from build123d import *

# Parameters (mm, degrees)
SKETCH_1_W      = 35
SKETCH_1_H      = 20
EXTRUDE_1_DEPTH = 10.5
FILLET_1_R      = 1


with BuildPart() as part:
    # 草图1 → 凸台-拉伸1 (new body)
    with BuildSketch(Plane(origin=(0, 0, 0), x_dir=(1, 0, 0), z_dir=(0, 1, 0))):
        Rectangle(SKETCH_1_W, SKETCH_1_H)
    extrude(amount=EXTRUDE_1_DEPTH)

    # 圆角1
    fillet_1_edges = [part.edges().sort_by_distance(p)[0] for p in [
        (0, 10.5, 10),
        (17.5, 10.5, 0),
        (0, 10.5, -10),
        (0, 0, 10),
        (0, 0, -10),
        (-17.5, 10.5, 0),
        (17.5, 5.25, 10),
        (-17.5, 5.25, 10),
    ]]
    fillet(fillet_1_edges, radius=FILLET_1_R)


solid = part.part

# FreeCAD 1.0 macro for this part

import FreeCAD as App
import Part
import Sketcher

V = App.Vector


def edges_at(feature, points):
    """Names of the edges that pass closest to the given points."""
    edges = feature.Shape.Edges
    near = lambda p: min(range(len(edges)), key=lambda i: edges[i].distToShape(Part.Vertex(*p))[0])
    return sorted({f"Edge{near(p) + 1}" for p in points})

doc = App.newDocument("Part")
body = doc.addObject("PartDesign::Body", "Body")

sketch1 = body.newObject("Sketcher::SketchObject", "Sketch")
sketch1.AttachmentSupport = (doc.getObject("XZ_Plane"), [""])
sketch1.MapMode = "FlatFace"
sketch1.addGeometry([
    Part.LineSegment(V(-18, -10, 0), V(-18, 10, 0)),
    Part.LineSegment(V(-18, 10, 0), V(18, 10, 0)),
    Part.LineSegment(V(18, 10, 0), V(18, -10, 0)),
    Part.LineSegment(V(18, -10, 0), V(-18, -10, 0)),
], False)
sketch1.addConstraint([
    Sketcher.Constraint("Coincident", 0, 2, 1, 1),
    Sketcher.Constraint("Coincident", 1, 2, 2, 1),
    Sketcher.Constraint("Coincident", 2, 2, 3, 1),
    Sketcher.Constraint("Coincident", 3, 2, 0, 1),
    Sketcher.Constraint("Vertical", 0),
    Sketcher.Constraint("Horizontal", 1),
    Sketcher.Constraint("Vertical", 2),
    Sketcher.Constraint("Horizontal", 3),
    Sketcher.Constraint("Symmetric", 0, 2, 2, 2, -1, 1),
    Sketcher.Constraint("DistanceX", 1, 1, 1, 2, 35.0),
    Sketcher.Constraint("DistanceY", 0, 1, 0, 2, 20.0),
])
pad1 = body.newObject("PartDesign::Pad", "Pad")
pad1.Profile = sketch1
pad1.Length = 10.5
pad1.Reversed = True
doc.recompute()

fillet = body.newObject("PartDesign::Fillet", "Fillet")
fillet.Base = (pad1, edges_at(pad1, [
    (0, 10.5, 10),
    (17.5, 10.5, 0),
    (0, 10.5, -10),
    (0, 0, 10),
    (0, 0, -10),
    (-17.5, 10.5, 0),
    (17.5, 5.25, 10),
    (-17.5, 5.25, 10),
]))
fillet.Radius = 1

doc.recompute()
